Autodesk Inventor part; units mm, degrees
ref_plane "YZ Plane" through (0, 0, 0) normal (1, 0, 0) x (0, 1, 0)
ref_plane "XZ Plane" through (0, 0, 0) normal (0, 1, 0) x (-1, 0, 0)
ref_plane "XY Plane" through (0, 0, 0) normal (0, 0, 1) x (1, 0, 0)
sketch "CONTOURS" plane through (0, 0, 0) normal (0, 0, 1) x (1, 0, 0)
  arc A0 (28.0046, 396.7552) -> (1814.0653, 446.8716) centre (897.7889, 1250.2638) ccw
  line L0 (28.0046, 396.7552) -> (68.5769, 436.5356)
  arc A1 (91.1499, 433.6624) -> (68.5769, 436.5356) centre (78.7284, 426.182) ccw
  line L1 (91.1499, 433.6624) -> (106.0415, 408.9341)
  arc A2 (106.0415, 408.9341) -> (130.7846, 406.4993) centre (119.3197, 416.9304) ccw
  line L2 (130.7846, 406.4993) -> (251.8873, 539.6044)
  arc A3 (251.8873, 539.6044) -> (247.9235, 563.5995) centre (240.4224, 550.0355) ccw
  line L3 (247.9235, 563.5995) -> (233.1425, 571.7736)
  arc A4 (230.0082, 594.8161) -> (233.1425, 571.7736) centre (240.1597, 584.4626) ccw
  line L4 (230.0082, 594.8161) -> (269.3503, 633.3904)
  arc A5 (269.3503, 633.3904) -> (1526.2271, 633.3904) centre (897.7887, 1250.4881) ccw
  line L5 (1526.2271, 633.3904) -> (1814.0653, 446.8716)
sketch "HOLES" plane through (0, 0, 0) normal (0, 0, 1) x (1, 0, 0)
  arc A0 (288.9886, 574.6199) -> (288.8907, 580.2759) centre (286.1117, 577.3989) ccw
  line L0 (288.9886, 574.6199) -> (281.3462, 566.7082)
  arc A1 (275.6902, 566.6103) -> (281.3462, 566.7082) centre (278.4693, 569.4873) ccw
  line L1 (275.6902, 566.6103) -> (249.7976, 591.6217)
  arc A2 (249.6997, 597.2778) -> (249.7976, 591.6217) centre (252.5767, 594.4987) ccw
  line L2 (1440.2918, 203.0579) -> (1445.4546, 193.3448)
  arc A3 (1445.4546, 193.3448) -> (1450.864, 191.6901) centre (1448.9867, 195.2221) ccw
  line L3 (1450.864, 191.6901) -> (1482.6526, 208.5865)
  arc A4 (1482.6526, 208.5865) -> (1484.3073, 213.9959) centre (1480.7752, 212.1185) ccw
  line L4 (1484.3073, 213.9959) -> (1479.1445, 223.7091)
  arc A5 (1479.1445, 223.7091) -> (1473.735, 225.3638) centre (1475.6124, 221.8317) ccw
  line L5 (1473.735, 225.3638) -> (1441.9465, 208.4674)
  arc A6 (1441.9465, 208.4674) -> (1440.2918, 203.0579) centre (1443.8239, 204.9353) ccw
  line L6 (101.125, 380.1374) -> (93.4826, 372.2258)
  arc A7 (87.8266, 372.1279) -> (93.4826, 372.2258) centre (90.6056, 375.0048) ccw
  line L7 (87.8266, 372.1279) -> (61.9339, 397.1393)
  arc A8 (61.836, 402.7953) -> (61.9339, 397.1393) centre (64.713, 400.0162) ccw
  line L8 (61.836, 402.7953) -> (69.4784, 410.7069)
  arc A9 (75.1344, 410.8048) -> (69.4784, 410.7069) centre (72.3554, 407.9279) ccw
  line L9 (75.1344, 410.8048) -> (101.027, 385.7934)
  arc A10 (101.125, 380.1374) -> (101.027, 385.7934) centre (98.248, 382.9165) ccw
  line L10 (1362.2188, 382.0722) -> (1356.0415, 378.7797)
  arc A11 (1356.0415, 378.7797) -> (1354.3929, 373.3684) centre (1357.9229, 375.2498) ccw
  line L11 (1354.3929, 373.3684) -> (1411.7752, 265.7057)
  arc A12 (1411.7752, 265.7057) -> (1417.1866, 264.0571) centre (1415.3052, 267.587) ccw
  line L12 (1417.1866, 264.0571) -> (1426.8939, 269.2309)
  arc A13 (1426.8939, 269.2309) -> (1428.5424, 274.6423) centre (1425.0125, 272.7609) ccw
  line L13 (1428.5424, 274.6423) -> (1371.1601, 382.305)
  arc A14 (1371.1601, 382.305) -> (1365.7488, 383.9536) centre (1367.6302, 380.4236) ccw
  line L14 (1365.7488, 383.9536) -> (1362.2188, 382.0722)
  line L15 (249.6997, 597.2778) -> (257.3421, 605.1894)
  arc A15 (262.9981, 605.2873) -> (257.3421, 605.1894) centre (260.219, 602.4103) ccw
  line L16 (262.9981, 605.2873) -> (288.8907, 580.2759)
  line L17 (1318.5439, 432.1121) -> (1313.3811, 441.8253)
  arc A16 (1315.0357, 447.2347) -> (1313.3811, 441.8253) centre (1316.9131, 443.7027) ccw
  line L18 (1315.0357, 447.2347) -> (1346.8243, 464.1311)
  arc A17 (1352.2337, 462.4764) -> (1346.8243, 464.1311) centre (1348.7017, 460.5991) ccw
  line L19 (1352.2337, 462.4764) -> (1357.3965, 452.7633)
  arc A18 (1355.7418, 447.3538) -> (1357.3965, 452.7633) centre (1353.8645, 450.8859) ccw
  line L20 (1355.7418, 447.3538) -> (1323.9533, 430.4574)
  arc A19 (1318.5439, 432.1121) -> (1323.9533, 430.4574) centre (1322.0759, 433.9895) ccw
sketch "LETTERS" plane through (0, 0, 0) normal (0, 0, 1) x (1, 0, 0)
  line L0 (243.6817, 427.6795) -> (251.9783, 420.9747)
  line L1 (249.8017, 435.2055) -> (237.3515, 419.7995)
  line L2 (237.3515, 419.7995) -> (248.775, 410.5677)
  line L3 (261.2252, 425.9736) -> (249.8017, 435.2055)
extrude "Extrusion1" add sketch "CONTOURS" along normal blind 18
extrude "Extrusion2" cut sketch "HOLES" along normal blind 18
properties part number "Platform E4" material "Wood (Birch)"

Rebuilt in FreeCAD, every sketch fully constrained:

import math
import FreeCAD as App
import Part
import Sketcher

V = App.Vector
Q = App.Units.Quantity

doc = App.newDocument("Part")
body = doc.addObject("PartDesign::Body", "Body")

sketch1 = body.newObject("Sketcher::SketchObject", "Sketch")
sketch1.AttachmentSupport = (doc.getObject("XY_Plane"), [""])
sketch1.MapMode = "FlatFace"
sketch1.addGeometry([
    Part.LineSegment(V(68.5769, 436.5356, 0), V(28.0046, 396.7552, 0)),
    Part.ArcOfCircle(Part.Circle(V(897.7889, 1250.2638, 0), V(0, 0, 1), 1218.606441), math.radians(-135.541116), math.radians(-41.244322)),
    Part.LineSegment(V(1814.0653, 446.8716, 0), V(1526.2271, 633.3904, 0)),
    Part.ArcOfCircle(Part.Circle(V(897.7887, 1250.4881, 0), V(0, 0, 1), 880.763529), math.radians(-135.521668), math.radians(-44.478332)),
    Part.LineSegment(V(269.3503, 633.3904, 0), V(230.0082, 594.8161, 0)),
    Part.ArcOfCircle(Part.Circle(V(240.1597, 584.4626, 0), V(0, 0, 1), 14.499928), math.radians(134.435583), math.radians(241.056773)),
    Part.LineSegment(V(233.1425, 571.7736, 0), V(247.9235, 563.5995, 0)),
    Part.ArcOfCircle(Part.Circle(V(240.4224, 550.0355, 0), V(0, 0, 1), 15.500057), math.radians(-42.296839), math.radians(61.056733)),
    Part.LineSegment(V(251.8873, 539.6044, 0), V(130.7846, 406.4993, 0)),
    Part.ArcOfCircle(Part.Circle(V(119.3197, 416.9304, 0), V(0, 0, 1), 15.500045), math.radians(-148.943117), math.radians(-42.296839)),
    Part.LineSegment(V(106.0415, 408.9341, 0), V(91.1499, 433.6624, 0)),
    Part.ArcOfCircle(Part.Circle(V(78.7284, 426.182, 0), V(0, 0, 1), 14.500002), math.radians(31.056936), math.radians(134.435306)),
], False)
sketch1.addConstraint([
    Sketcher.Constraint("Coincident", 0, 2, 1, 1),
    Sketcher.Constraint("Coincident", 1, 2, 2, 1),
    Sketcher.Constraint("Coincident", 2, 2, 3, 2),
    Sketcher.Constraint("Coincident", 3, 1, 4, 1),
    Sketcher.Constraint("Tangent", 4, 2, 5, 1),
    Sketcher.Constraint("Tangent", 5, 2, 6, 1),
    Sketcher.Constraint("Tangent", 6, 2, 7, 2),
    Sketcher.Constraint("Tangent", 7, 1, 8, 1),
    Sketcher.Constraint("Tangent", 8, 2, 9, 2),
    Sketcher.Constraint("Tangent", 9, 1, 10, 1),
    Sketcher.Constraint("Tangent", 10, 2, 11, 1),
    Sketcher.Constraint("Tangent", 11, 2, 0, 1),
    Sketcher.Constraint("Equal", 7, 9),
    Sketcher.Constraint("Equal", 5, 11),
    Sketcher.Constraint("Parallel", 0, 4),
    Sketcher.Constraint("Radius", 5, Q("14.5 mm")),
    Sketcher.Constraint("Radius", 7, Q("15.5 mm")),
    Sketcher.Constraint("Radius", 1, Q("1218.6064 mm")),
    Sketcher.Constraint("Radius", 3, Q("880.7635 mm")),
    Sketcher.Constraint("DistanceX", -1, 1, 10, 2, Q("91.15 mm")),
    Sketcher.Constraint("DistanceX", 9, 3, 5, 3, Q("120.84 mm")),
    Sketcher.Constraint("DistanceX", 0, 2, 8, 2, Q("102.78 mm")),
    Sketcher.Constraint("Distance", 2, Q("342.987 mm")),
    Sketcher.Constraint("Distance", 4, Q("55.098 mm")),
    Sketcher.Constraint("Distance", 10, Q("28.866 mm")),
    Sketcher.Constraint("DistanceX", -1, 1, 1, 3, Q("897.789 mm")),
    Sketcher.Constraint("DistanceY", -1, 1, 3, 3, Q("1250.488 mm")),
    Sketcher.Constraint("DistanceY", -1, 1, 11, 3, Q("426.182 mm")),
    Sketcher.Constraint("DistanceX", -1, 1, 2, 2, Q("1526.227 mm")),
    Sketcher.Constraint("DistanceY", -1, 1, 4, 2, Q("594.816 mm")),
    Sketcher.Constraint("DistanceY", -1, 1, 9, 1, Q("408.934 mm")),
    Sketcher.Constraint("DistanceX", -1, 1, 11, 2, Q("68.577 mm")),
    Sketcher.Constraint("DistanceY", 7, 3, 5, 3, Q("34.427 mm")),
    Sketcher.Constraint("DistanceX", 11, 3, 7, 3, Q("161.694 mm")),
])
pad1 = body.newObject("PartDesign::Pad", "Pad")
pad1.Profile = sketch1
pad1.Length = 18

sketch2 = body.newObject("Sketcher::SketchObject", "Sketch001")
sketch2.AttachmentSupport = (doc.getObject("XY_Plane"), [""])
sketch2.MapMode = "FlatFace"
sketch2.addGeometry([
    Part.LineSegment(V(281.3462, 566.7082, 0), V(288.9886, 574.6199, 0)),
    Part.ArcOfCircle(Part.Circle(V(286.1117, 577.3989, 0), V(0, 0, 1), 3.999924), math.radians(-44.008346), math.radians(45.992649)),
    Part.LineSegment(V(288.8907, 580.2759, 0), V(262.9981, 605.2873, 0)),
    Part.ArcOfCircle(Part.Circle(V(260.219, 602.4103, 0), V(0, 0, 1), 4.000066), math.radians(45.991619), math.radians(135.990624)),
    Part.LineSegment(V(257.3421, 605.1894, 0), V(249.6997, 597.2778, 0)),
    Part.ArcOfCircle(Part.Circle(V(252.5767, 594.4987, 0), V(0, 0, 1), 4.000066), math.radians(135.991619), math.radians(225.991619)),
    Part.LineSegment(V(249.7976, 591.6217, 0), V(275.6902, 566.6103, 0)),
    Part.ArcOfCircle(Part.Circle(V(278.4693, 569.4873, 0), V(0, 0, 1), 4.000066), math.radians(-134.008381), math.radians(-44.009376)),
    Part.ArcOfCircle(Part.Circle(V(1443.8239, 204.9353, 0), V(0, 0, 1), 4.000045), math.radians(117.991768), math.radians(207.991768)),
    Part.LineSegment(V(1440.2918, 203.0579, 0), V(1445.4546, 193.3448, 0)),
    Part.ArcOfCircle(Part.Circle(V(1448.9867, 195.2221, 0), V(0, 0, 1), 3.999998), math.radians(-152.009497), math.radians(-62.008824)),
    Part.LineSegment(V(1450.864, 191.6901, 0), V(1482.6526, 208.5865, 0)),
    Part.ArcOfCircle(Part.Circle(V(1480.7752, 212.1185, 0), V(0, 0, 1), 3.999957), math.radians(-62.00756), math.radians(27.991768)),
    Part.LineSegment(V(1484.3073, 213.9959, 0), V(1479.1445, 223.7091, 0)),
    Part.ArcOfCircle(Part.Circle(V(1475.6124, 221.8317, 0), V(0, 0, 1), 4.000045), math.radians(27.991768), math.radians(117.991768)),
    Part.LineSegment(V(1473.735, 225.3638, 0), V(1441.9465, 208.4674, 0)),
    Part.LineSegment(V(93.4826, 372.2258, 0), V(101.125, 380.1374, 0)),
    Part.ArcOfCircle(Part.Circle(V(98.248, 382.9165, 0), V(0, 0, 1), 4.000066), math.radians(-44.008381), math.radians(45.991654)),
    Part.LineSegment(V(101.027, 385.7934, 0), V(75.1344, 410.8048, 0)),
    Part.ArcOfCircle(Part.Circle(V(72.3554, 407.9279, 0), V(0, 0, 1), 3.999924), math.radians(45.991654), math.radians(135.992649)),
    Part.LineSegment(V(69.4784, 410.7069, 0), V(61.836, 402.7953, 0)),
    Part.ArcOfCircle(Part.Circle(V(64.713, 400.0162, 0), V(0, 0, 1), 4.000066), math.radians(135.991619), math.radians(225.990624)),
    Part.LineSegment(V(61.9339, 397.1393, 0), V(87.8266, 372.1279, 0)),
    Part.ArcOfCircle(Part.Circle(V(90.6056, 375.0048, 0), V(0, 0, 1), 3.999924), math.radians(-134.008346), math.radians(-44.007351)),
    Part.LineSegment(V(1365.7488, 383.9536, 0), V(1362.2188, 382.0722, 0)),
    Part.LineSegment(V(1362.2188, 382.0722, 0), V(1356.0415, 378.7797, 0)),
    Part.ArcOfCircle(Part.Circle(V(1357.9229, 375.2498, 0), V(0, 0, 1), 3.999982), math.radians(118.057152), math.radians(208.056478)),
    Part.LineSegment(V(1354.3929, 373.3684, 0), V(1411.7752, 265.7057, 0)),
    Part.ArcOfCircle(Part.Circle(V(1415.3052, 267.587, 0), V(0, 0, 1), 4.000024), math.radians(-151.944786), math.radians(-61.942848)),
    Part.LineSegment(V(1417.1866, 264.0571, 0), V(1426.8939, 269.2309, 0)),
    Part.ArcOfCircle(Part.Circle(V(1425.0125, 272.7609, 0), V(0, 0, 1), 4.000071), math.radians(-61.943522), math.radians(28.057152)),
    Part.LineSegment(V(1428.5424, 274.6423, 0), V(1371.1601, 382.305, 0)),
    Part.ArcOfCircle(Part.Circle(V(1367.6302, 380.4236, 0), V(0, 0, 1), 3.999982), math.radians(28.057152), math.radians(118.056478)),
    Part.LineSegment(V(1313.3811, 441.8253, 0), V(1318.5439, 432.1121, 0)),
    Part.ArcOfCircle(Part.Circle(V(1322.0759, 433.9895, 0), V(0, 0, 1), 3.999957), math.radians(-152.00756), math.radians(-62.008232)),
    Part.LineSegment(V(1323.9533, 430.4574, 0), V(1355.7418, 447.3538, 0)),
    Part.ArcOfCircle(Part.Circle(V(1353.8645, 450.8859, 0), V(0, 0, 1), 3.999998), math.radians(-62.009497), math.radians(27.99244)),
    Part.LineSegment(V(1357.3965, 452.7633, 0), V(1352.2337, 462.4764, 0)),
    Part.ArcOfCircle(Part.Circle(V(1348.7017, 460.5991, 0), V(0, 0, 1), 3.99991), math.radians(27.991176), math.radians(117.99244)),
    Part.LineSegment(V(1346.8243, 464.1311, 0), V(1315.0357, 447.2347, 0)),
    Part.ArcOfCircle(Part.Circle(V(1316.9131, 443.7027, 0), V(0, 0, 1), 3.999957), math.radians(117.99244), math.radians(207.99244)),
], False)
sketch2.addConstraint([
    Sketcher.Constraint("Coincident", 0, 2, 1, 1),
    Sketcher.Constraint("Coincident", 1, 2, 2, 1),
    Sketcher.Constraint("Coincident", 2, 2, 3, 1),
    Sketcher.Constraint("Coincident", 3, 2, 4, 1),
    Sketcher.Constraint("Coincident", 4, 2, 5, 1),
    Sketcher.Constraint("Coincident", 5, 2, 6, 1),
    Sketcher.Constraint("Coincident", 6, 2, 7, 1),
    Sketcher.Constraint("Coincident", 7, 2, 0, 1),
    Sketcher.Constraint("Coincident", 8, 2, 9, 1),
    Sketcher.Constraint("Coincident", 9, 2, 10, 1),
    Sketcher.Constraint("Coincident", 10, 2, 11, 1),
    Sketcher.Constraint("Coincident", 11, 2, 12, 1),
    Sketcher.Constraint("Coincident", 12, 2, 13, 1),
    Sketcher.Constraint("Coincident", 13, 2, 14, 1),
    Sketcher.Constraint("Coincident", 14, 2, 15, 1),
    Sketcher.Constraint("Coincident", 15, 2, 8, 1),
    Sketcher.Constraint("Coincident", 16, 2, 17, 1),
    Sketcher.Constraint("Coincident", 17, 2, 18, 1),
    Sketcher.Constraint("Coincident", 18, 2, 19, 1),
    Sketcher.Constraint("Coincident", 19, 2, 20, 1),
    Sketcher.Constraint("Coincident", 20, 2, 21, 1),
    Sketcher.Constraint("Coincident", 21, 2, 22, 1),
    Sketcher.Constraint("Coincident", 22, 2, 23, 1),
    Sketcher.Constraint("Coincident", 23, 2, 16, 1),
    Sketcher.Constraint("Coincident", 24, 2, 25, 1),
    Sketcher.Constraint("Coincident", 25, 2, 26, 1),
    Sketcher.Constraint("Coincident", 26, 2, 27, 1),
    Sketcher.Constraint("Coincident", 27, 2, 28, 1),
    Sketcher.Constraint("Coincident", 28, 2, 29, 1),
    Sketcher.Constraint("Coincident", 29, 2, 30, 1),
    Sketcher.Constraint("Coincident", 30, 2, 31, 1),
    Sketcher.Constraint("Coincident", 31, 2, 32, 1),
    Sketcher.Constraint("Coincident", 32, 2, 24, 1),
    Sketcher.Constraint("Coincident", 33, 2, 34, 1),
    Sketcher.Constraint("Coincident", 34, 2, 35, 1),
    Sketcher.Constraint("Coincident", 35, 2, 36, 1),
    Sketcher.Constraint("Coincident", 36, 2, 37, 1),
    Sketcher.Constraint("Coincident", 37, 2, 38, 1),
    Sketcher.Constraint("Coincident", 38, 2, 39, 1),
    Sketcher.Constraint("Coincident", 39, 2, 40, 1),
    Sketcher.Constraint("Coincident", 40, 2, 33, 1),
    Sketcher.Constraint("Radius", 1, Q("4 mm")),
    Sketcher.Constraint("Radius", 3, Q("4 mm")),
    Sketcher.Constraint("Radius", 5, Q("4 mm")),
    Sketcher.Constraint("Radius", 7, Q("4 mm")),
    Sketcher.Constraint("Radius", 8, Q("4 mm")),
    Sketcher.Constraint("Radius", 10, Q("4 mm")),
    Sketcher.Constraint("Radius", 12, Q("4 mm")),
    Sketcher.Constraint("Radius", 14, Q("4 mm")),
    Sketcher.Constraint("Radius", 17, Q("4 mm")),
    Sketcher.Constraint("Radius", 19, Q("4 mm")),
    Sketcher.Constraint("Radius", 21, Q("4 mm")),
    Sketcher.Constraint("Radius", 23, Q("4 mm")),
    Sketcher.Constraint("Radius", 26, Q("4 mm")),
    Sketcher.Constraint("Radius", 28, Q("4 mm")),
    Sketcher.Constraint("Radius", 30, Q("4 mm")),
    Sketcher.Constraint("Radius", 32, Q("4 mm")),
    Sketcher.Constraint("Radius", 34, Q("4 mm")),
    Sketcher.Constraint("Radius", 36, Q("4 mm")),
    Sketcher.Constraint("Radius", 38, Q("4 mm")),
    Sketcher.Constraint("Radius", 40, Q("4 mm")),
    Sketcher.Constraint("Distance", 0, Q("11 mm")),
    Sketcher.Constraint("Distance", 2, Q("36 mm")),
    Sketcher.Constraint("Distance", 4, Q("11 mm")),
    Sketcher.Constraint("Distance", 6, Q("36 mm")),
    Sketcher.Constraint("Distance", 9, Q("11 mm")),
    Sketcher.Constraint("Distance", 11, Q("36 mm")),
    Sketcher.Constraint("Distance", 13, Q("11 mm")),
    Sketcher.Constraint("Distance", 15, Q("36 mm")),
    Sketcher.Constraint("Distance", 16, Q("11 mm")),
    Sketcher.Constraint("Distance", 18, Q("36 mm")),
    Sketcher.Constraint("Distance", 20, Q("11 mm")),
    Sketcher.Constraint("Distance", 22, Q("36 mm")),
    Sketcher.Constraint("Distance", 24, Q("4 mm")),
    Sketcher.Constraint("Distance", 25, Q("7 mm")),
    Sketcher.Constraint("Distance", 27, Q("122 mm")),
    Sketcher.Constraint("Distance", 29, Q("11 mm")),
    Sketcher.Constraint("Distance", 31, Q("122 mm")),
    Sketcher.Constraint("Distance", 33, Q("11 mm")),
    Sketcher.Constraint("Distance", 35, Q("36 mm")),
    Sketcher.Constraint("Distance", 37, Q("11 mm")),
    Sketcher.Constraint("Distance", 39, Q("36 mm")),
    Sketcher.Constraint("DistanceY", -1, 1, 0, 2, Q("574.62 mm")),
    Sketcher.Constraint("DistanceY", -1, 1, 10, 2, Q("191.69 mm")),
    Sketcher.Constraint("DistanceX", -1, 1, 31, 2, Q("1371.16 mm")),
    Sketcher.Constraint("DistanceY", -1, 1, 1, 3, Q("577.399 mm")),
    Sketcher.Constraint("DistanceX", -1, 1, 3, 3, Q("260.219 mm")),
    Sketcher.Constraint("DistanceX", -1, 1, 8, 3, Q("1443.824 mm")),
    Sketcher.Constraint("DistanceY", -1, 1, 10, 3, Q("195.222 mm")),
    Sketcher.Constraint("DistanceX", -1, 1, 17, 3, Q("98.248 mm")),
    Sketcher.Constraint("DistanceY", -1, 1, 19, 3, Q("407.928 mm")),
    Sketcher.Constraint("DistanceX", -1, 1, 21, 3, Q("64.713 mm")),
    Sketcher.Constraint("DistanceX", -1, 1, 26, 3, Q("1357.923 mm")),
    Sketcher.Constraint("DistanceY", -1, 1, 28, 3, Q("267.587 mm")),
    Sketcher.Constraint("DistanceY", -1, 1, 30, 3, Q("272.761 mm")),
    Sketcher.Constraint("DistanceX", -1, 1, 34, 3, Q("1322.076 mm")),
    Sketcher.Constraint("DistanceY", -1, 1, 36, 3, Q("450.886 mm")),
    Sketcher.Constraint("DistanceY", -1, 1, 38, 3, Q("460.599 mm")),
    Sketcher.Constraint("DistanceX", -1, 1, 40, 3, Q("1316.913 mm")),
    Sketcher.Constraint("DistanceX", -1, 1, 2, 2, Q("262.998 mm")),
    Sketcher.Constraint("DistanceX", -1, 1, 3, 2, Q("257.342 mm")),
    Sketcher.Constraint("DistanceY", -1, 1, 8, 2, Q("203.058 mm")),
    Sketcher.Constraint("DistanceX", -1, 1, 10, 2, Q("1450.864 mm")),
    Sketcher.Constraint("DistanceY", -1, 1, 13, 2, Q("223.709 mm")),
    Sketcher.Constraint("DistanceX", -1, 1, 14, 2, Q("1473.735 mm")),
    Sketcher.Constraint("DistanceX", -1, 1, 16, 2, Q("101.125 mm")),
    Sketcher.Constraint("DistanceX", -1, 1, 17, 2, Q("101.027 mm")),
    Sketcher.Constraint("DistanceX", -1, 1, 20, 2, Q("61.836 mm")),
    Sketcher.Constraint("DistanceY", -1, 1, 22, 2, Q("372.128 mm")),
    Sketcher.Constraint("DistanceX", -1, 1, 26, 2, Q("1354.393 mm")),
    Sketcher.Constraint("DistanceY", -1, 1, 28, 2, Q("264.057 mm")),
    Sketcher.Constraint("DistanceX", -1, 1, 29, 2, Q("1426.894 mm")),
    Sketcher.Constraint("DistanceY", -1, 1, 29, 2, Q("269.231 mm")),
    Sketcher.Constraint("DistanceY", -1, 1, 31, 2, Q("382.305 mm")),
    Sketcher.Constraint("DistanceX", -1, 1, 33, 2, Q("1318.544 mm")),
    Sketcher.Constraint("DistanceY", -1, 1, 33, 2, Q("432.112 mm")),
    Sketcher.Constraint("DistanceY", -1, 1, 38, 2, Q("464.131 mm")),
    Sketcher.Constraint("DistanceX", -1, 1, 40, 2, Q("1313.381 mm")),
    Sketcher.Constraint("DistanceX", -1, 1, 1, 3, Q("286.1117 mm")),
    Sketcher.Constraint("DistanceY", -1, 1, 3, 3, Q("602.4103 mm")),
    Sketcher.Constraint("DistanceX", -1, 1, 5, 3, Q("252.5767 mm")),
    Sketcher.Constraint("DistanceY", -1, 1, 5, 3, Q("594.4987 mm")),
    Sketcher.Constraint("DistanceX", -1, 1, 7, 3, Q("278.4693 mm")),
    Sketcher.Constraint("DistanceY", -1, 1, 7, 3, Q("569.4873 mm")),
    Sketcher.Constraint("DistanceY", -1, 1, 8, 3, Q("204.9353 mm")),
    Sketcher.Constraint("DistanceX", -1, 1, 12, 3, Q("1480.7752 mm")),
    Sketcher.Constraint("DistanceY", -1, 1, 12, 3, Q("212.1185 mm")),
    Sketcher.Constraint("DistanceX", -1, 1, 14, 3, Q("1475.6124 mm")),
    Sketcher.Constraint("DistanceY", -1, 1, 14, 3, Q("221.8317 mm")),
    Sketcher.Constraint("DistanceY", -1, 1, 17, 3, Q("382.9165 mm")),
    Sketcher.Constraint("DistanceX", -1, 1, 19, 3, Q("72.3554 mm")),
    Sketcher.Constraint("DistanceY", -1, 1, 21, 3, Q("400.0162 mm")),
    Sketcher.Constraint("DistanceX", -1, 1, 23, 3, Q("90.6056 mm")),
    Sketcher.Constraint("DistanceY", -1, 1, 23, 3, Q("375.0048 mm")),
    Sketcher.Constraint("DistanceY", -1, 1, 26, 3, Q("375.2498 mm")),
    Sketcher.Constraint("DistanceX", -1, 1, 32, 3, Q("1367.6302 mm")),
    Sketcher.Constraint("DistanceX", -1, 1, 36, 3, Q("1353.8645 mm")),
    Sketcher.Constraint("DistanceX", -1, 1, 38, 3, Q("1348.7017 mm")),
    Sketcher.Constraint("DistanceX", -1, 1, 5, 2, Q("249.7976 mm")),
    Sketcher.Constraint("DistanceX", -1, 1, 24, 2, Q("1362.2188 mm")),
    Sketcher.Constraint("DistanceY", -1, 1, 24, 2, Q("382.0722 mm")),
    Sketcher.Constraint("DistanceX", -1, 1, 34, 2, Q("1323.9533 mm")),
    Sketcher.Constraint("DistanceX", -1, 1, 36, 2, Q("1357.3965 mm")),
])
pocket1 = body.newObject("PartDesign::Pocket", "Pocket")
pocket1.Profile = sketch2
pocket1.Length = 18
pocket1.Reversed = True

doc.recompute()
